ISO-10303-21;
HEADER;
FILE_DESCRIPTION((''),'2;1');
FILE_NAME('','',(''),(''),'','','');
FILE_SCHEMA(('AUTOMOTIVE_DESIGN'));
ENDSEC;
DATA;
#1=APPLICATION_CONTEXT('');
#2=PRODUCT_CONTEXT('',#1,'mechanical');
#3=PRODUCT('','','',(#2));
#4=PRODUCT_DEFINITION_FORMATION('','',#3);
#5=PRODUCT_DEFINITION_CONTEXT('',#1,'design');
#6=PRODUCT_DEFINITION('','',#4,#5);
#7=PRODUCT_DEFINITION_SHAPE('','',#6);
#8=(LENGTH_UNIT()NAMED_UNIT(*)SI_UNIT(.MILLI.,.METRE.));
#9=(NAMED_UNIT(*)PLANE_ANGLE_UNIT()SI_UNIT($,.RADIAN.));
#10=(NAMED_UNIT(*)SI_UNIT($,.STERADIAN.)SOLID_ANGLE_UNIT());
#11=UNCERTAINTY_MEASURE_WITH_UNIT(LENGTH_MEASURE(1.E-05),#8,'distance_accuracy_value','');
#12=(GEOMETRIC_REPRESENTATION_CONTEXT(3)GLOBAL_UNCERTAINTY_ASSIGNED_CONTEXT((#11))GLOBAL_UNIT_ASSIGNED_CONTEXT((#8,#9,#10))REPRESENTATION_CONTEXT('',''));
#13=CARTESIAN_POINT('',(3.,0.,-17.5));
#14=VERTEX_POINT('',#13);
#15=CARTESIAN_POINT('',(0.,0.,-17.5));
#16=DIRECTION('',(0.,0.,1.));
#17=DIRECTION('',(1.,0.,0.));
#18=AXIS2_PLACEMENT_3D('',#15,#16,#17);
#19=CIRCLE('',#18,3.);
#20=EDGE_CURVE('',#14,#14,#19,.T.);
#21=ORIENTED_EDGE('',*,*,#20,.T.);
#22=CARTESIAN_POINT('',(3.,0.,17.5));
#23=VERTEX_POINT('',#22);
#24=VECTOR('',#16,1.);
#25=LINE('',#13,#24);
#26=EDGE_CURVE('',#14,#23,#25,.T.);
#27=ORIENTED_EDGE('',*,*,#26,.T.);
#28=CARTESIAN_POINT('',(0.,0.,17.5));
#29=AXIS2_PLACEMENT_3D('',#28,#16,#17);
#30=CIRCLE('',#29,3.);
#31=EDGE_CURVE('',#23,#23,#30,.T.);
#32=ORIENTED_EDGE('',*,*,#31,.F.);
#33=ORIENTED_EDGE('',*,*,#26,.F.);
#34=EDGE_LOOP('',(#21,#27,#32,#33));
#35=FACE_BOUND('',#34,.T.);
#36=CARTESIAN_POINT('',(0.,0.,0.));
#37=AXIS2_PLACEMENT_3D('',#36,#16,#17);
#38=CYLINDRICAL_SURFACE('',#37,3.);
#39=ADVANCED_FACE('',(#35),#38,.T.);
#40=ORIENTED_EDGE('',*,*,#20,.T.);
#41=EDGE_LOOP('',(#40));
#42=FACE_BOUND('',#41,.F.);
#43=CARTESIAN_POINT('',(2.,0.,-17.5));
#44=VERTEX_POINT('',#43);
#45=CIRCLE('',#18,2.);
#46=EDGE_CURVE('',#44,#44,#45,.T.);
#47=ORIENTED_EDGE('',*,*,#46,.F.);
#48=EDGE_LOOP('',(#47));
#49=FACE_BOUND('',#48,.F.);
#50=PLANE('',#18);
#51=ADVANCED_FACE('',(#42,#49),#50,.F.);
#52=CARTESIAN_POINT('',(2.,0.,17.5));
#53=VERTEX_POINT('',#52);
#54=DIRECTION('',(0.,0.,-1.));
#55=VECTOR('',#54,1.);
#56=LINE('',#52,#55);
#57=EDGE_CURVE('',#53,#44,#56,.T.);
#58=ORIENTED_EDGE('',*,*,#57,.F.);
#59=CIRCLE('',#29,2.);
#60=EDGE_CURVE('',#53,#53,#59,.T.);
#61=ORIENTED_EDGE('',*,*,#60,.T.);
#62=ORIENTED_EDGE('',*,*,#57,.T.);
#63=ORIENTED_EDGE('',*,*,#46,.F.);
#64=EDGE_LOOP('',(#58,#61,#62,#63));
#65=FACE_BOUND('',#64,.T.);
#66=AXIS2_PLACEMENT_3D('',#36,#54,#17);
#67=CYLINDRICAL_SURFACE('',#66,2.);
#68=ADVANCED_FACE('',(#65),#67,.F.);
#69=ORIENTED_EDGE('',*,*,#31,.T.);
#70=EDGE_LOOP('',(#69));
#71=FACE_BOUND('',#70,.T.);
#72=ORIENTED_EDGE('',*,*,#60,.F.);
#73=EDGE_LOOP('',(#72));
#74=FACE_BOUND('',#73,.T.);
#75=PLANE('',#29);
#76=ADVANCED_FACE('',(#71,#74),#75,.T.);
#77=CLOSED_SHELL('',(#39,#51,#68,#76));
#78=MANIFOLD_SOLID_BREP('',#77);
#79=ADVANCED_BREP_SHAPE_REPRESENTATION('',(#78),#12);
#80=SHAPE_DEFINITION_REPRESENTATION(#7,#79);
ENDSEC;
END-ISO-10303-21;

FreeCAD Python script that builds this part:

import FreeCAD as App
import Part
import Sketcher

doc = App.newDocument("Part")
body = doc.addObject("PartDesign::Body", "Body")

sketch1 = body.newObject("Sketcher::SketchObject", "Sketch")
sketch1.AttachmentSupport = (doc.getObject("XY_Plane"), [""])
sketch1.MapMode = "FlatFace"
sketch1.addGeometry([
    Part.Circle(App.Vector(0, 0, 0), App.Vector(0, 0, 1), 3),
    Part.Circle(App.Vector(0, 0, 0), App.Vector(0, 0, 1), 2),
], False)
sketch1.addConstraint([
    Sketcher.Constraint("Coincident", 0, 3, -1, 1),
    Sketcher.Constraint("Coincident", 1, 3, -1, 1),
    Sketcher.Constraint("Diameter", 0, 6.0),
    Sketcher.Constraint("Diameter", 1, 4.0),
])
pad1 = body.newObject("PartDesign::Pad", "Pad")
pad1.Profile = sketch1
pad1.Length = 35
pad1.Midplane = True

doc.recompute()
